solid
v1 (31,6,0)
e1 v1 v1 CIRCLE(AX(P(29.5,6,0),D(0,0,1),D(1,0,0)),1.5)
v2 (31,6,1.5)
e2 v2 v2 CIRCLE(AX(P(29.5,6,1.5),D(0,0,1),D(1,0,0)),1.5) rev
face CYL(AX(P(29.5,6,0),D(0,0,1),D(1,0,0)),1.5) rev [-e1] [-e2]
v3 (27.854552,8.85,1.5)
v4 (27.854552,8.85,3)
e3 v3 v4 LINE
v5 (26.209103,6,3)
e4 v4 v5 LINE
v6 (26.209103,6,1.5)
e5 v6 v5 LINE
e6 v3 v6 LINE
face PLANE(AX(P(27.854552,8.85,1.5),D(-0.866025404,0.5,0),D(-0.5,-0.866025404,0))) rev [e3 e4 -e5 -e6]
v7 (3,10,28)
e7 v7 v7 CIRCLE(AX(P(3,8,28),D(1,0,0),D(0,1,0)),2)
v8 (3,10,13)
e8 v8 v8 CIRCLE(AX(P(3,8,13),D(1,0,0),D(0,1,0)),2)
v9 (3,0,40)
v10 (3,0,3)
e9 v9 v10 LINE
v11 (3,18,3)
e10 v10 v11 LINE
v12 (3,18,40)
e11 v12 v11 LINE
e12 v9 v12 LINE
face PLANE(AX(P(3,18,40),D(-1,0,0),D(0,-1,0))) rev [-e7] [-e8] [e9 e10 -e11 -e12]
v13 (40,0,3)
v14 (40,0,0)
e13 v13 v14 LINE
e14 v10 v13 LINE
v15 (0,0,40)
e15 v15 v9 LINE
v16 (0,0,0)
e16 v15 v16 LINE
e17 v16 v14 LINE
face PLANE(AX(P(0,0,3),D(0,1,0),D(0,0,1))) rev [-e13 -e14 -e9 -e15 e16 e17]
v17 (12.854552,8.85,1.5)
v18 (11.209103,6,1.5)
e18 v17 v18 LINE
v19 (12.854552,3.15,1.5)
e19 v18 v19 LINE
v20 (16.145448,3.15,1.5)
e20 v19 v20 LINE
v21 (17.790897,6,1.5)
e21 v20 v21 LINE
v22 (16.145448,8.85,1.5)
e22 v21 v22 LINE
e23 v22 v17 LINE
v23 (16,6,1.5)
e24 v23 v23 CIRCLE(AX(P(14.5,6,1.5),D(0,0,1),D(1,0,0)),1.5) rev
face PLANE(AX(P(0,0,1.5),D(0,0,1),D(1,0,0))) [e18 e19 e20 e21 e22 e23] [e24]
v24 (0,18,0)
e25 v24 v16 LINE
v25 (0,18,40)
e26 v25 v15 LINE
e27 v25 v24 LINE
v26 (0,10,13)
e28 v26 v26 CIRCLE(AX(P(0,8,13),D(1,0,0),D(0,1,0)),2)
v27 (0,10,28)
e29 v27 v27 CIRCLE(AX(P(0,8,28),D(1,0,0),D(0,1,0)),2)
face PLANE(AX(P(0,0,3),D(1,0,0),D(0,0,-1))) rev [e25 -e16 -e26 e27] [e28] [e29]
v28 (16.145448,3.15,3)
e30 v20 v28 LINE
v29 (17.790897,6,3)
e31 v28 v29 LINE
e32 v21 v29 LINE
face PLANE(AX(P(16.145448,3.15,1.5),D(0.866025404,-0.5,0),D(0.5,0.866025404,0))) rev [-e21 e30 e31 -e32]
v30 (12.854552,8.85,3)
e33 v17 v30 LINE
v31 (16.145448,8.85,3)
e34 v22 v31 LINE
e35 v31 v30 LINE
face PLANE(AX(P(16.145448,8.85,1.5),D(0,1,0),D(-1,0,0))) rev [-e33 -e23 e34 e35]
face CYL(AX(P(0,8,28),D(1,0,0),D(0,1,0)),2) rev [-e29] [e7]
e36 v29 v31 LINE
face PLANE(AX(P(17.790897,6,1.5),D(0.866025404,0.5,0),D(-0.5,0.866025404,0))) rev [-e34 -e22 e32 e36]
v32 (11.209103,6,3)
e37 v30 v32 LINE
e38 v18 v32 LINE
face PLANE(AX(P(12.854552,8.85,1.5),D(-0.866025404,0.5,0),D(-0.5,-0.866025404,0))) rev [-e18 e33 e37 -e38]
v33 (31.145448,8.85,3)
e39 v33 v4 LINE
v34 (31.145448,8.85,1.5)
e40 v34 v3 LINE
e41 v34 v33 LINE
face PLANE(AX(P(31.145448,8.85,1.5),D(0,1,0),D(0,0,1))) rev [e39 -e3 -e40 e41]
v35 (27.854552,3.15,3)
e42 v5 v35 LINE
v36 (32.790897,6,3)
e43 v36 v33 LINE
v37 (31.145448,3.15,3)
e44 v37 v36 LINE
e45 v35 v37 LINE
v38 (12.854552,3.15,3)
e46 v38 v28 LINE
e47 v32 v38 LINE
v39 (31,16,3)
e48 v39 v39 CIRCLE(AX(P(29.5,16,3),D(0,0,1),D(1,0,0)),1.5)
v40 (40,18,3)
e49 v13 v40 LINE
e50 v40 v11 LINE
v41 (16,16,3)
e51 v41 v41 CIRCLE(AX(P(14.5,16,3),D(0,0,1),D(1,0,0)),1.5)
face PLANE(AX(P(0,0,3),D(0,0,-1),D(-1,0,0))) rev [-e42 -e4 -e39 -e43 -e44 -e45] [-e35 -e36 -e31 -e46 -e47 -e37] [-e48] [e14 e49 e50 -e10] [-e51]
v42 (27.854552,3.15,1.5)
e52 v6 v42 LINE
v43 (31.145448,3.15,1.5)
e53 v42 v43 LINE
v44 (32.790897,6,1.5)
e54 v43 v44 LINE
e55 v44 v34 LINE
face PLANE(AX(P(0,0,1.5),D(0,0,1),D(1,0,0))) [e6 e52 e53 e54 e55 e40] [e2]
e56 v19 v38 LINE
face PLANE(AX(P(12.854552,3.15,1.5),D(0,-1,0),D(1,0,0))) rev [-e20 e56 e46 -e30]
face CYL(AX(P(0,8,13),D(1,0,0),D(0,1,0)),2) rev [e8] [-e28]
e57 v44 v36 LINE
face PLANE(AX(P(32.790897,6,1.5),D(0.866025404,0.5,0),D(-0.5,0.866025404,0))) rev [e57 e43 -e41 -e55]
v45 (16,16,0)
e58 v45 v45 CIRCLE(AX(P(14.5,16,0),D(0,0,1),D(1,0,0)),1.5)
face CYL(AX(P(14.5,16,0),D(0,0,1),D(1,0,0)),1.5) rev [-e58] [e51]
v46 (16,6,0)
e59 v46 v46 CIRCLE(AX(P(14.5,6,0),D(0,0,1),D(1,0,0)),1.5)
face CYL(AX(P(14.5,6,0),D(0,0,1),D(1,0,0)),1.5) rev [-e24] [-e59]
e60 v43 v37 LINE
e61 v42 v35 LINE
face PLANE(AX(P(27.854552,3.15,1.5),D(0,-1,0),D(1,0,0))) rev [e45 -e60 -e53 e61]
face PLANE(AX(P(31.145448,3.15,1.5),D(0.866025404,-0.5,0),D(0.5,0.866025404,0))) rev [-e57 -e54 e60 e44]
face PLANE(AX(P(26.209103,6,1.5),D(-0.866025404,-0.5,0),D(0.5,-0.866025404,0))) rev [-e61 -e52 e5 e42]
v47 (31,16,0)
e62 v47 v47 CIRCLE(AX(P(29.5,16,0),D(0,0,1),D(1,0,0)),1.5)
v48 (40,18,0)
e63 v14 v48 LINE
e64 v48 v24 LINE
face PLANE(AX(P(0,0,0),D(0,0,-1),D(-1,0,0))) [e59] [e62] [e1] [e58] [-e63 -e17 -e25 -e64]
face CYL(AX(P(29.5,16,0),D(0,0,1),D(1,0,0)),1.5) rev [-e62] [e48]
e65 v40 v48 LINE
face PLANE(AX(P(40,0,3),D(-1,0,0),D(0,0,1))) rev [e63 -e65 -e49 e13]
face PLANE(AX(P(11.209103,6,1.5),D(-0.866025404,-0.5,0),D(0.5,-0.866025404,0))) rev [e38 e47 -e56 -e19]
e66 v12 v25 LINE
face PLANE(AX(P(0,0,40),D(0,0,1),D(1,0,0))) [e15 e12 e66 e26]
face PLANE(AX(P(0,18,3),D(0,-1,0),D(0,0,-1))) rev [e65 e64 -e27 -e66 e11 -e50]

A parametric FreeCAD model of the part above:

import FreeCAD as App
import Part
import Sketcher

V = App.Vector
Q = App.Units.Quantity


def add_polygon(sketch, points):
    """Adds a closed chain of lines whose ends are joined by coincident constraints."""
    first, n = sketch.GeometryCount, len(points)
    for a, b in zip(points, points[1:] + points[:1]):
        sketch.addGeometry(Part.LineSegment(App.Vector(*a, 0), App.Vector(*b, 0)), False)
    for i in range(n):
        sketch.addConstraint(Sketcher.Constraint("Coincident", first + i, 2, first + (i + 1) % n, 1))

doc = App.newDocument("Part")
body = doc.addObject("PartDesign::Body", "Body")

# Sketch on XY plane
sketch1 = body.newObject("Sketcher::SketchObject", "Sketch")
sketch1.AttachmentSupport = (doc.getObject("XY_Plane"), [""])
sketch1.MapMode = "FlatFace"
add_polygon(sketch1, [(0, 18), (0, 0), (40, 0), (40, 18)])  # lines 0-3
sketch1.addConstraint([
    Sketcher.Constraint("Vertical", 0),
    Sketcher.Constraint("Horizontal", 1),
    Sketcher.Constraint("Vertical", 2),
    Sketcher.Constraint("Horizontal", 3),
    Sketcher.Constraint("Coincident", 0, 2, -1, 1),
    Sketcher.Constraint("DistanceX", 1, 1, 1, 2, Q("40 mm")),
    Sketcher.Constraint("DistanceY", 0, 2, 0, 1, Q("18 mm")),
])
pad1 = body.newObject("PartDesign::Pad", "Pad")
pad1.Profile = sketch1
pad1.Length = 3

# Sketch on XY plane
sketch2 = body.newObject("Sketcher::SketchObject", "Sketch001")
sketch2.AttachmentSupport = (doc.getObject("XY_Plane"), [""])
sketch2.MapMode = "FlatFace"
sketch2.AttachmentOffset = App.Placement(V(0, 0, 3), App.Rotation())
add_polygon(sketch2, [(0, 18), (0, 0), (3, 0), (3, 18)])  # lines 0-3
sketch2.addConstraint([
    Sketcher.Constraint("Vertical", 0),
    Sketcher.Constraint("Horizontal", 1),
    Sketcher.Constraint("Vertical", 2),
    Sketcher.Constraint("Horizontal", 3),
    Sketcher.Constraint("Coincident", 0, 2, -1, 1),
    Sketcher.Constraint("DistanceX", 1, 1, 1, 2, Q("3 mm")),
    Sketcher.Constraint("DistanceY", 0, 2, 0, 1, Q("18 mm")),
])
pad2 = body.newObject("PartDesign::Pad", "Pad001")
pad2.Profile = sketch2
pad2.Length = 37

# Sketch on XY plane
sketch3 = body.newObject("Sketcher::SketchObject", "Sketch002")
sketch3.AttachmentSupport = (doc.getObject("XY_Plane"), [""])
sketch3.MapMode = "FlatFace"
sketch3.AttachmentOffset = App.Placement(V(0, 0, 3), App.Rotation())
sketch3.addGeometry([
    Part.Circle(V(14.5, 16, 0), V(0, 0, 1), 1.5),
    Part.Circle(V(29.5, 16, 0), V(0, 0, 1), 1.5),
    Part.Circle(V(14.5, 6, 0), V(0, 0, 1), 1.5),
    Part.Circle(V(29.5, 6, 0), V(0, 0, 1), 1.5),
], False)
sketch3.addConstraint([
    Sketcher.Constraint("Equal", 0, 1),
    Sketcher.Constraint("Equal", 1, 2),
    Sketcher.Constraint("Equal", 2, 3),
    Sketcher.Constraint("Horizontal", 0, 3, 1, 3),
    Sketcher.Constraint("Horizontal", 2, 3, 3, 3),
    Sketcher.Constraint("Vertical", 0, 3, 2, 3),
    Sketcher.Constraint("Vertical", 1, 3, 3, 3),
    Sketcher.Constraint("Diameter", 0, Q("3 mm")),
    Sketcher.Constraint("DistanceY", -1, 1, 0, 3, Q("16 mm")),
    Sketcher.Constraint("DistanceY", -1, 1, 2, 3, Q("6 mm")),
    Sketcher.Constraint("DistanceX", 0, 3, 1, 3, Q("15 mm")),
    Sketcher.Constraint("DistanceX", -1, 1, 0, 3, Q("14.5 mm")),
])
pocket1 = body.newObject("PartDesign::Pocket", "Pocket")
pocket1.Profile = sketch3
pocket1.Type = "ThroughAll"

# Sketch on YZ plane
sketch4 = body.newObject("Sketcher::SketchObject", "Sketch003")
sketch4.AttachmentSupport = (doc.getObject("YZ_Plane"), [""])
sketch4.MapMode = "FlatFace"
sketch4.AttachmentOffset = App.Placement(V(0, 0, 3), App.Rotation())
sketch4.addGeometry([
    Part.Circle(V(8, 28, 0), V(0, 0, 1), 2),
    Part.Circle(V(8, 13, 0), V(0, 0, 1), 2),
], False)
sketch4.addConstraint([
    Sketcher.Constraint("Equal", 0, 1),
    Sketcher.Constraint("Vertical", 0, 3, 1, 3),
    Sketcher.Constraint("Diameter", 0, Q("4 mm")),
    Sketcher.Constraint("DistanceX", -1, 1, 0, 3, Q("8 mm")),
    Sketcher.Constraint("DistanceY", -1, 1, 0, 3, Q("28 mm")),
    Sketcher.Constraint("DistanceY", -1, 1, 1, 3, Q("13 mm")),
])
pocket2 = body.newObject("PartDesign::Pocket", "Pocket001")
pocket2.Profile = sketch4
pocket2.Type = "ThroughAll"

# Sketch on XY plane
sketch5 = body.newObject("Sketcher::SketchObject", "Sketch004")
sketch5.AttachmentSupport = (doc.getObject("XY_Plane"), [""])
sketch5.MapMode = "FlatFace"
sketch5.AttachmentOffset = App.Placement(V(0, 0, 3), App.Rotation())
add_polygon(sketch5, [(16.1, 8.8), (12.9, 8.8), (11.2, 6), (12.9, 3.1), (16.1, 3.1), (17.8, 6)])  # lines 0-5
add_polygon(sketch5, [(31.1, 8.8), (27.9, 8.8), (26.2, 6), (27.9, 3.1), (31.1, 3.1), (32.8, 6)])  # lines 6-11
sketch5.addConstraint([
    Sketcher.Constraint("Horizontal", 0),
    Sketcher.Constraint("Horizontal", 3),
    Sketcher.Constraint("Horizontal", 6),
    Sketcher.Constraint("Horizontal", 9),
    Sketcher.Constraint("Parallel", 1, 4),
    Sketcher.Constraint("Parallel", 2, 5),
    Sketcher.Constraint("Parallel", 4, 7),
    Sketcher.Constraint("Parallel", 5, 8),
    Sketcher.Constraint("Parallel", 7, 10),
    Sketcher.Constraint("Parallel", 8, 11),
    Sketcher.Constraint("Horizontal", 1, 2, 4, 2),
    Sketcher.Constraint("Horizontal", 5, 2, 6, 2),
    Sketcher.Constraint("Horizontal", 4, 2, 7, 2),
    Sketcher.Constraint("Horizontal", 3, 2, 8, 2),
    Sketcher.Constraint("Horizontal", 7, 2, 10, 2),
    Sketcher.Constraint("Vertical", 0, 2, 2, 2),
    Sketcher.Constraint("Vertical", 3, 2, 5, 2),
    Sketcher.Constraint("Equal", 3, 6),
    Sketcher.Constraint("Angle", 1, Q("-120 deg")),
    Sketcher.Constraint("DistanceY", -1, 1, 1, 2, Q("6 mm")),
    Sketcher.Constraint("DistanceX", 0, 2, 6, 2, Q("15 mm")),
    Sketcher.Constraint("DistanceY", 2, 2, 0, 2, Q("5.7 mm")),
    Sketcher.Constraint("DistanceX", 0, 2, 0, 1, Q("3.290897 mm")),
    Sketcher.Constraint("DistanceX", -1, 1, 0, 2, Q("12.854552 mm")),
])
pocket3 = body.newObject("PartDesign::Pocket", "Pocket002")
pocket3.Profile = sketch5
pocket3.Length = 1.5

doc.recompute()
